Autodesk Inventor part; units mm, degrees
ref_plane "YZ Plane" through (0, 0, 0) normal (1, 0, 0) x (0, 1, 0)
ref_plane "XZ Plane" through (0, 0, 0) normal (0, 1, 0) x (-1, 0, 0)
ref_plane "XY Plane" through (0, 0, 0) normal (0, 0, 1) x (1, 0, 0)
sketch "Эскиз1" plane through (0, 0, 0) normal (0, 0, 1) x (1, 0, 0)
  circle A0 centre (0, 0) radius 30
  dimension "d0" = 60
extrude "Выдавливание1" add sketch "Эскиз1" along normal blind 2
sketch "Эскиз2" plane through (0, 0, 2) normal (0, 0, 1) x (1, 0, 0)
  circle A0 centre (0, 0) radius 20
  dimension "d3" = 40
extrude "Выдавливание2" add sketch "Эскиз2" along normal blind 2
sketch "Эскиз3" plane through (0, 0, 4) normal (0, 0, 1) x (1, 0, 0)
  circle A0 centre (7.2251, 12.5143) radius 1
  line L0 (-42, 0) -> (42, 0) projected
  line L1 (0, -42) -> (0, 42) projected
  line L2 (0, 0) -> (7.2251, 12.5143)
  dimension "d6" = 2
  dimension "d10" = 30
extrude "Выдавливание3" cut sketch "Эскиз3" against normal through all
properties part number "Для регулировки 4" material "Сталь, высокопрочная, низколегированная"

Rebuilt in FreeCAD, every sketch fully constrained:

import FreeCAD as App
import Part
import Sketcher
from FreeCAD import Vector
Q = App.Units.Quantity

doc = App.newDocument("Part")
body = doc.addObject("PartDesign::Body", "Body")

# Sketch on XY plane
sketch1 = body.newObject("Sketcher::SketchObject", "Sketch")
sketch1.AttachmentSupport = (doc.getObject("XY_Plane"), [""])
sketch1.MapMode = "FlatFace"
sketch1.addGeometry(Part.Circle(Vector(0, 0, 0), Vector(0, 0, 1), 30), False)
sketch1.addConstraint([
    Sketcher.Constraint("Coincident", 0, 3, -1, 1),
    Sketcher.Constraint("Diameter", 0, Q("60 mm")),
])
pad1 = body.newObject("PartDesign::Pad", "Pad")
pad1.Profile = sketch1
pad1.Length = 2

# Sketch on XY plane
sketch2 = body.newObject("Sketcher::SketchObject", "Sketch001")
sketch2.AttachmentSupport = (doc.getObject("XY_Plane"), [""])
sketch2.MapMode = "FlatFace"
sketch2.AttachmentOffset = App.Placement(Vector(0, 0, 2), App.Rotation())
sketch2.addGeometry(Part.Circle(Vector(0, 0, 0), Vector(0, 0, 1), 20), False)
sketch2.addConstraint([
    Sketcher.Constraint("Coincident", 0, 3, -1, 1),
    Sketcher.Constraint("Diameter", 0, Q("40 mm")),
])
pad2 = body.newObject("PartDesign::Pad", "Pad001")
pad2.Profile = sketch2
pad2.Length = 2

# Sketch on XY plane
sketch3 = body.newObject("Sketcher::SketchObject", "Sketch002")
sketch3.AttachmentSupport = (doc.getObject("XY_Plane"), [""])
sketch3.MapMode = "FlatFace"
sketch3.AttachmentOffset = App.Placement(Vector(0, 0, 4), App.Rotation())
sketch3.addGeometry(Part.Circle(Vector(7.2251, 12.5143, 0), Vector(0, 0, 1), 1), False)
sketch3.addConstraint([
    Sketcher.Constraint("Diameter", 0, Q("2 mm")),
    Sketcher.Constraint("DistanceX", -1, 1, 0, 3, Q("7.225 mm")),
    Sketcher.Constraint("DistanceY", -1, 1, 0, 3, Q("12.5143 mm")),
])
pocket1 = body.newObject("PartDesign::Pocket", "Pocket")
pocket1.Profile = sketch3
pocket1.Type = "ThroughAll"

doc.recompute()
